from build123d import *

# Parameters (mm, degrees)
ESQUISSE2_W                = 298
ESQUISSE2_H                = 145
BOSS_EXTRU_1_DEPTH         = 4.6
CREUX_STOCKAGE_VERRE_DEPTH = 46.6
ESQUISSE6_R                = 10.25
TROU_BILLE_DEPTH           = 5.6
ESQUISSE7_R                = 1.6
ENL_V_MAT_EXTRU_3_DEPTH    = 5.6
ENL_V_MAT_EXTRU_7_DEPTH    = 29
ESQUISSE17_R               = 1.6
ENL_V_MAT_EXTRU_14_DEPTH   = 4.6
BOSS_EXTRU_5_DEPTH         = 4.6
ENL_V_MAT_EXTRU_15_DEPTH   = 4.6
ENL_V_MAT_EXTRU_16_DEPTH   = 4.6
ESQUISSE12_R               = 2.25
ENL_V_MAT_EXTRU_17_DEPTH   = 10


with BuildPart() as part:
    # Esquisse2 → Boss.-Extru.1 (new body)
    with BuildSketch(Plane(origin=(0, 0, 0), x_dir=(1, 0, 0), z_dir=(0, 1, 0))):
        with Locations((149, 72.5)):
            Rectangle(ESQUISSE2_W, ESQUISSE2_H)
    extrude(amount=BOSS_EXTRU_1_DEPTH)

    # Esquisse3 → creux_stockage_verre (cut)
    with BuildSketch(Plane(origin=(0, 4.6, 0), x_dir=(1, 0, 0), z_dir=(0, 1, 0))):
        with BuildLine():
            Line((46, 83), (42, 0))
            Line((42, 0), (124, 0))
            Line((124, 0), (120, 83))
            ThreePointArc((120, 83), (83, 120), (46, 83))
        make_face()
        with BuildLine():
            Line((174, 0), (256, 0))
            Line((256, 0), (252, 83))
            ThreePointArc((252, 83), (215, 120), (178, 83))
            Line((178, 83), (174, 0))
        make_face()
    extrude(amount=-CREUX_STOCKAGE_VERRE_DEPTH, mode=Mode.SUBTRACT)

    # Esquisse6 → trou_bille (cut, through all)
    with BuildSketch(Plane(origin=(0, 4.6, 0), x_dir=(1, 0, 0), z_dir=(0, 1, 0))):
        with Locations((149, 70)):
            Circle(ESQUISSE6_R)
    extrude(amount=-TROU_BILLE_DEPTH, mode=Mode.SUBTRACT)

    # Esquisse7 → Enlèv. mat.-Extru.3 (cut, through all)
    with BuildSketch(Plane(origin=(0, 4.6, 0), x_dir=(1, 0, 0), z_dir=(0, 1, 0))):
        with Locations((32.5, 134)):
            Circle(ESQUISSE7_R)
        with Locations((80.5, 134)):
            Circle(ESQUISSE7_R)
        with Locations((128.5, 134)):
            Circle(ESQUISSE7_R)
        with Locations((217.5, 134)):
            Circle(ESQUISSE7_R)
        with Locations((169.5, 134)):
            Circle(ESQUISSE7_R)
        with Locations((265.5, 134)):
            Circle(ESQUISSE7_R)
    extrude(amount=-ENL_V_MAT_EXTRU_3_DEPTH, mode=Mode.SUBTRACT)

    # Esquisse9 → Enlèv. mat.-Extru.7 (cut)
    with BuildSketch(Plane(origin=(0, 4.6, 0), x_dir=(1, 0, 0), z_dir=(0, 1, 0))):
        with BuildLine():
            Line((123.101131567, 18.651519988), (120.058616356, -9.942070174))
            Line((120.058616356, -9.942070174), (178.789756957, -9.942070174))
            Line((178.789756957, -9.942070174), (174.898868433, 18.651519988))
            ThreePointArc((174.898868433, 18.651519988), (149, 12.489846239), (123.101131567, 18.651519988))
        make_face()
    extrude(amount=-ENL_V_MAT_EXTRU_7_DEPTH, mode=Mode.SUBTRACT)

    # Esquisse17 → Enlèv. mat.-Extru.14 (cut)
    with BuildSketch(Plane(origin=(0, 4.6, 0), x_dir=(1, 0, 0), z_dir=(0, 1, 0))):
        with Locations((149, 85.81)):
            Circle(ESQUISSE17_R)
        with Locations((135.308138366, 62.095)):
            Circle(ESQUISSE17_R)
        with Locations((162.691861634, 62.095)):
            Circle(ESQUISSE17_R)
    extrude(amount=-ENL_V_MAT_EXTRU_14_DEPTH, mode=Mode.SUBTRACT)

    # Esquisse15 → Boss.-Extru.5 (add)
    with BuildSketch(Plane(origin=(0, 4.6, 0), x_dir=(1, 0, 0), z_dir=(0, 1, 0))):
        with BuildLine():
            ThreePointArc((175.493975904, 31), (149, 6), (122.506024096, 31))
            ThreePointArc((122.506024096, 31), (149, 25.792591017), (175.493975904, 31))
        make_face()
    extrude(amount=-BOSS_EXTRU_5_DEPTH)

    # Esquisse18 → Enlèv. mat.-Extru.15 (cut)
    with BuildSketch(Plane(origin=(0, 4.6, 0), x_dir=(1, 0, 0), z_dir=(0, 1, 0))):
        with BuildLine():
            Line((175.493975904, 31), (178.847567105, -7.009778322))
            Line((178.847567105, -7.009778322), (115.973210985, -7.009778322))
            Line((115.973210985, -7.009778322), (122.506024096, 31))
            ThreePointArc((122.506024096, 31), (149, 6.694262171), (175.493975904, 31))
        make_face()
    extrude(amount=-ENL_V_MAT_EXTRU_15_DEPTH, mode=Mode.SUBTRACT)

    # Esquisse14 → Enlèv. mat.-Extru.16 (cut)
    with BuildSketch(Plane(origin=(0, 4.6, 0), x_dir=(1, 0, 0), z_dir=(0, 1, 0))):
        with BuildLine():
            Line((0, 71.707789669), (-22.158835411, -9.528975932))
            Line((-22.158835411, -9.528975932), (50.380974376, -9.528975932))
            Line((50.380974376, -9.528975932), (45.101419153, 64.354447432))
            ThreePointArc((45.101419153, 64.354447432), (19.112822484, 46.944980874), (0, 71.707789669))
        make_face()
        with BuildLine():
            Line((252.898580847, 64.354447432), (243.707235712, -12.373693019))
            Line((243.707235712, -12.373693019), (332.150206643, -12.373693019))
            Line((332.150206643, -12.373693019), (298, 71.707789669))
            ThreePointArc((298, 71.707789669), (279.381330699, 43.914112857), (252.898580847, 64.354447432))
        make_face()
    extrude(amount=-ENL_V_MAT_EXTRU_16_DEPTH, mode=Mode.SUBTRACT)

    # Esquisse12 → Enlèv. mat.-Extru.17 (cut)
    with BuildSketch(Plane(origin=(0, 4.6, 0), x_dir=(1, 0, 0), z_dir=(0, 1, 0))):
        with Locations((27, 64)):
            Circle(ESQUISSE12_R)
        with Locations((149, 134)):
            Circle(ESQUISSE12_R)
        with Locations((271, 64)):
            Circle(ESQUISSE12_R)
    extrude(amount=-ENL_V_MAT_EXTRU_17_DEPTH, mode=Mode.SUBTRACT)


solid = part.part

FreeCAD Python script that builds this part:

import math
import FreeCAD as App
import Part
import Sketcher
Q = App.Units.Quantity

doc = App.newDocument("Part")
body = doc.addObject("PartDesign::Body", "Body")

# Sketch on XZ plane
sketch1 = body.newObject("Sketcher::SketchObject", "Sketch")
sketch1.AttachmentSupport = (doc.getObject("XZ_Plane"), [""])
sketch1.MapMode = "FlatFace"
sketch1.addGeometry([
    Part.LineSegment(App.Vector(0, -145, 0), App.Vector(0, 0, 0)),
    Part.LineSegment(App.Vector(0, 0, 0), App.Vector(298, 0, 0)),
    Part.LineSegment(App.Vector(298, 0, 0), App.Vector(298, -145, 0)),
    Part.LineSegment(App.Vector(298, -145, 0), App.Vector(0, -145, 0)),
], False)
sketch1.addConstraint([
    Sketcher.Constraint("Coincident", 0, 2, 1, 1),
    Sketcher.Constraint("Coincident", 1, 2, 2, 1),
    Sketcher.Constraint("Coincident", 2, 2, 3, 1),
    Sketcher.Constraint("Coincident", 3, 2, 0, 1),
    Sketcher.Constraint("Vertical", 0),
    Sketcher.Constraint("Horizontal", 1),
    Sketcher.Constraint("Vertical", 2),
    Sketcher.Constraint("Horizontal", 3),
    Sketcher.Constraint("Coincident", 0, 2, -1, 1),
    Sketcher.Constraint("DistanceX", 1, 1, 1, 2, Q("298 mm")),
    Sketcher.Constraint("DistanceY", 0, 1, 0, 2, Q("145 mm")),
])
pad1 = body.newObject("PartDesign::Pad", "Pad")
pad1.Profile = sketch1
pad1.Length = 4.6
pad1.Reversed = True

# Sketch on XZ plane
sketch2 = body.newObject("Sketcher::SketchObject", "Sketch001")
sketch2.AttachmentSupport = (doc.getObject("XZ_Plane"), [""])
sketch2.MapMode = "FlatFace"
sketch2.AttachmentOffset = App.Placement(App.Vector(0, 0, -4.6), App.Rotation())
sketch2.addGeometry([
    Part.LineSegment(App.Vector(46, -83, 0), App.Vector(42, 0, 0)),  # 0
    Part.LineSegment(App.Vector(42, 0, 0), App.Vector(124, 0, 0)),  # 1
    Part.LineSegment(App.Vector(124, 0, 0), App.Vector(120, -83, 0)),  # 2
    Part.ArcOfCircle(Part.Circle(App.Vector(83, -83, 0), App.Vector(0, 0, 1), 37), math.radians(180), math.radians(360)),  # 3
    Part.LineSegment(App.Vector(174, 0, 0), App.Vector(256, 0, 0)),  # 4
    Part.LineSegment(App.Vector(256, 0, 0), App.Vector(252, -83, 0)),  # 5
    Part.ArcOfCircle(Part.Circle(App.Vector(215, -83, 0), App.Vector(0, 0, 1), 37), math.radians(180), math.radians(360)),  # 6
    Part.LineSegment(App.Vector(178, -83, 0), App.Vector(174, 0, 0)),  # 7
], False)
sketch2.addConstraint([
    Sketcher.Constraint("Coincident", 0, 2, 1, 1),
    Sketcher.Constraint("Coincident", 1, 2, 2, 1),
    Sketcher.Constraint("Coincident", 2, 2, 3, 2),
    Sketcher.Constraint("Coincident", 3, 1, 0, 1),
    Sketcher.Constraint("Coincident", 4, 2, 5, 1),
    Sketcher.Constraint("Coincident", 5, 2, 6, 2),
    Sketcher.Constraint("Coincident", 6, 1, 7, 1),
    Sketcher.Constraint("Coincident", 7, 2, 4, 1),
    Sketcher.Constraint("Horizontal", 1),
    Sketcher.Constraint("Horizontal", 4),
    Sketcher.Constraint("Equal", 3, 6),
    Sketcher.Constraint("PointOnObject", 0, 2, -1),
    Sketcher.Constraint("PointOnObject", 4, 2, -1),
    Sketcher.Constraint("Parallel", 2, 5),
    Sketcher.Constraint("Parallel", 0, 7),
    Sketcher.Constraint("Horizontal", 3, 3, 6, 3),
    Sketcher.Constraint("Horizontal", 6, 3, 2, 2),
    Sketcher.Constraint("Horizontal", 2, 2, 3, 1),
    Sketcher.Constraint("Horizontal", 3, 1, 5, 2),
    Sketcher.Constraint("Horizontal", 5, 2, 6, 1),
    Sketcher.Constraint("Equal", 0, 2),
    Sketcher.Constraint("Radius", 3, Q("37 mm")),
    Sketcher.Constraint("DistanceX", 1, 1, 1, 2, Q("82 mm")),
    Sketcher.Constraint("DistanceX", -1, 1, 3, 3, Q("83 mm")),
    Sketcher.Constraint("DistanceY", 3, 3, -1, 1, Q("83 mm")),
    Sketcher.Constraint("DistanceX", -1, 1, 6, 3, Q("215 mm")),
])
pocket1 = body.newObject("PartDesign::Pocket", "Pocket")
pocket1.Profile = sketch2
pocket1.Length = 46.6
pocket1.Reversed = True

# Sketch on XZ plane
sketch3 = body.newObject("Sketcher::SketchObject", "Sketch002")
sketch3.AttachmentSupport = (doc.getObject("XZ_Plane"), [""])
sketch3.MapMode = "FlatFace"
sketch3.AttachmentOffset = App.Placement(App.Vector(0, 0, -4.6), App.Rotation())
sketch3.addGeometry(Part.Circle(App.Vector(149, -70, 0), App.Vector(0, 0, 1), 10), False)
sketch3.addConstraint([
    Sketcher.Constraint("Diameter", 0, Q("20.5 mm")),
    Sketcher.Constraint("DistanceX", -1, 1, 0, 3, Q("149 mm")),
    Sketcher.Constraint("DistanceY", 0, 3, -1, 1, Q("70 mm")),
])
pocket2 = body.newObject("PartDesign::Pocket", "Pocket001")
pocket2.Profile = sketch3
pocket2.Type = "ThroughAll"
pocket2.Reversed = True

# Sketch on XZ plane
sketch4 = body.newObject("Sketcher::SketchObject", "Sketch003")
sketch4.AttachmentSupport = (doc.getObject("XZ_Plane"), [""])
sketch4.MapMode = "FlatFace"
sketch4.AttachmentOffset = App.Placement(App.Vector(0, 0, -4.6), App.Rotation())
sketch4.addGeometry([
    Part.Circle(App.Vector(32.5, -134, 0), App.Vector(0, 0, 1), 1.6),  # 0
    Part.Circle(App.Vector(80.5, -134, 0), App.Vector(0, 0, 1), 1.6),  # 1
    Part.Circle(App.Vector(128.5, -134, 0), App.Vector(0, 0, 1), 1.6),  # 2
    Part.Circle(App.Vector(217.5, -134, 0), App.Vector(0, 0, 1), 1.6),  # 3
    Part.Circle(App.Vector(169.5, -134, 0), App.Vector(0, 0, 1), 1.6),  # 4
    Part.Circle(App.Vector(265.5, -134, 0), App.Vector(0, 0, 1), 1.6),  # 5
], False)
sketch4.addConstraint([
    Sketcher.Constraint("Equal", 0, 1),
    Sketcher.Constraint("Equal", 1, 2),
    Sketcher.Constraint("Equal", 2, 3),
    Sketcher.Constraint("Equal", 3, 4),
    Sketcher.Constraint("Equal", 4, 5),
    Sketcher.Constraint("Horizontal", 0, 3, 1, 3),
    Sketcher.Constraint("Horizontal", 1, 3, 2, 3),
    Sketcher.Constraint("Horizontal", 2, 3, 3, 3),
    Sketcher.Constraint("Horizontal", 3, 3, 4, 3),
    Sketcher.Constraint("Horizontal", 4, 3, 5, 3),
    Sketcher.Constraint("Diameter", 0, Q("3.2 mm")),
    Sketcher.Constraint("DistanceY", 0, 3, -1, 1, Q("134 mm")),
    Sketcher.Constraint("DistanceX", 0, 3, 1, 3, Q("48 mm")),
    Sketcher.Constraint("DistanceX", 1, 3, 2, 3, Q("48 mm")),
    Sketcher.Constraint("DistanceX", 2, 3, 3, 3, Q("89 mm")),
    Sketcher.Constraint("DistanceX", 2, 3, 4, 3, Q("41 mm")),
    Sketcher.Constraint("DistanceX", 3, 3, 5, 3, Q("48 mm")),
    Sketcher.Constraint("DistanceX", -1, 1, 0, 3, Q("32.5 mm")),
])
pocket3 = body.newObject("PartDesign::Pocket", "Pocket002")
pocket3.Profile = sketch4
pocket3.Type = "ThroughAll"
pocket3.Reversed = True

# Sketch on XZ plane
sketch5 = body.newObject("Sketcher::SketchObject", "Sketch004")
sketch5.AttachmentSupport = (doc.getObject("XZ_Plane"), [""])
sketch5.MapMode = "FlatFace"
sketch5.AttachmentOffset = App.Placement(App.Vector(0, 0, -4.6), App.Rotation())
sketch5.addGeometry([
    Part.LineSegment(App.Vector(123, -19, 0), App.Vector(120, 10, 0)),
    Part.LineSegment(App.Vector(120, 10, 0), App.Vector(179, 10, 0)),
    Part.LineSegment(App.Vector(179, 10, 0), App.Vector(175, -19, 0)),
    Part.ArcOfCircle(Part.Circle(App.Vector(149, -70, 0), App.Vector(0, 0, 1), 58), math.radians(63), math.radians(117)),
], False)
sketch5.addConstraint([
    Sketcher.Constraint("Coincident", 0, 2, 1, 1),
    Sketcher.Constraint("Coincident", 1, 2, 2, 1),
    Sketcher.Constraint("Coincident", 2, 2, 3, 1),
    Sketcher.Constraint("Coincident", 3, 2, 0, 1),
    Sketcher.Constraint("Horizontal", 1),
    Sketcher.Constraint("Horizontal", 2, 2, 3, 2),
    Sketcher.Constraint("DistanceX", -1, 1, 3, 3, Q("149 mm")),
    Sketcher.Constraint("DistanceY", 3, 3, -1, 1, Q("70 mm")),
    Sketcher.Constraint("Radius", 3, Q("57.510154 mm")),
    Sketcher.Constraint("DistanceX", 1, 1, 1, 2, Q("58.731141 mm")),
    Sketcher.Constraint("DistanceY", -1, 1, 0, 2, Q("9.94207 mm")),
    Sketcher.Constraint("DistanceX", -1, 1, 2, 2, Q("174.898868 mm")),
    Sketcher.Constraint("DistanceX", 2, 2, 1, 2, Q("3.890889 mm")),
])
pocket4 = body.newObject("PartDesign::Pocket", "Pocket003")
pocket4.Profile = sketch5
pocket4.Length = 29
pocket4.Reversed = True

# Sketch on XZ plane
sketch6 = body.newObject("Sketcher::SketchObject", "Sketch005")
sketch6.AttachmentSupport = (doc.getObject("XZ_Plane"), [""])
sketch6.MapMode = "FlatFace"
sketch6.AttachmentOffset = App.Placement(App.Vector(0, 0, -4.6), App.Rotation())
sketch6.addGeometry([
    Part.Circle(App.Vector(149, -85.8, 0), App.Vector(0, 0, 1), 1.6),
    Part.Circle(App.Vector(135.3, -62.1, 0), App.Vector(0, 0, 1), 1.6),
    Part.Circle(App.Vector(162.7, -62.1, 0), App.Vector(0, 0, 1), 1.6),
], False)
sketch6.addConstraint([
    Sketcher.Constraint("Equal", 0, 1),
    Sketcher.Constraint("Equal", 1, 2),
    Sketcher.Constraint("Horizontal", 1, 3, 2, 3),
    Sketcher.Constraint("Diameter", 0, Q("3.2 mm")),
    Sketcher.Constraint("DistanceX", -1, 1, 0, 3, Q("149 mm")),
    Sketcher.Constraint("DistanceY", 0, 3, -1, 1, Q("85.81 mm")),
    Sketcher.Constraint("DistanceY", 1, 3, -1, 1, Q("62.095 mm")),
    Sketcher.Constraint("DistanceX", -1, 1, 1, 3, Q("135.308138 mm")),
    Sketcher.Constraint("DistanceX", -1, 1, 2, 3, Q("162.691862 mm")),
])
pocket5 = body.newObject("PartDesign::Pocket", "Pocket004")
pocket5.Profile = sketch6
pocket5.Length = 4.6
pocket5.Reversed = True

# Sketch on XZ plane
sketch7 = body.newObject("Sketcher::SketchObject", "Sketch006")
sketch7.AttachmentSupport = (doc.getObject("XZ_Plane"), [""])
sketch7.MapMode = "FlatFace"
sketch7.AttachmentOffset = App.Placement(App.Vector(0, 0, -4.6), App.Rotation())
sketch7.addGeometry([
    Part.ArcOfCircle(Part.Circle(App.Vector(149, -33, 0), App.Vector(0, 0, 1), 27), math.radians(3), math.radians(177)),
    Part.ArcOfCircle(Part.Circle(App.Vector(149, -96, 0), App.Vector(0, 0, 1), 70), math.radians(68), math.radians(112)),
], False)
sketch7.addConstraint([
    Sketcher.Constraint("Coincident", 0, 1, 1, 1),
    Sketcher.Constraint("Coincident", 1, 2, 0, 2),
    Sketcher.Constraint("Horizontal", 0, 1, 1, 2),
    Sketcher.Constraint("DistanceX", -1, 1, 0, 3, Q("149 mm")),
    Sketcher.Constraint("DistanceY", 0, 1, -1, 1, Q("31 mm")),
    Sketcher.Constraint("Radius", 1, Q("70.001019 mm")),
    Sketcher.Constraint("Radius", 0, Q("26.538615 mm")),
    Sketcher.Constraint("DistanceY", 1, 3, -1, 1, Q("95.79361 mm")),
])
pad2 = body.newObject("PartDesign::Pad", "Pad001")
pad2.Profile = sketch7
pad2.Length = 4.6

# Sketch on XZ plane
sketch8 = body.newObject("Sketcher::SketchObject", "Sketch007")
sketch8.AttachmentSupport = (doc.getObject("XZ_Plane"), [""])
sketch8.MapMode = "FlatFace"
sketch8.AttachmentOffset = App.Placement(App.Vector(0, 0, -4.6), App.Rotation())
sketch8.addGeometry([
    Part.LineSegment(App.Vector(179, 7, 0), App.Vector(175, -31, 0)),
    Part.ArcOfCircle(Part.Circle(App.Vector(149, -33, 0), App.Vector(0, 0, 1), 27), math.radians(5), math.radians(175)),
    Part.LineSegment(App.Vector(123, -31, 0), App.Vector(116, 7, 0)),
    Part.LineSegment(App.Vector(116, 7, 0), App.Vector(179, 7, 0)),
], False)
sketch8.addConstraint([
    Sketcher.Constraint("Coincident", 0, 2, 1, 1),
    Sketcher.Constraint("Coincident", 1, 2, 2, 1),
    Sketcher.Constraint("Coincident", 2, 2, 3, 1),
    Sketcher.Constraint("Coincident", 3, 2, 0, 1),
    Sketcher.Constraint("Horizontal", 3),
    Sketcher.Constraint("Horizontal", 0, 2, 1, 2),
    Sketcher.Constraint("DistanceX", -1, 1, 1, 3, Q("149 mm")),
    Sketcher.Constraint("DistanceY", 0, 2, -1, 1, Q("31 mm")),
    Sketcher.Constraint("Radius", 1, Q("26.592479 mm")),
    Sketcher.Constraint("DistanceX", 3, 1, 3, 2, Q("62.874356 mm")),
    Sketcher.Constraint("DistanceY", 1, 3, -1, 1, Q("33.286741 mm")),
    Sketcher.Constraint("DistanceX", -1, 1, 2, 2, Q("115.973211 mm")),
    Sketcher.Constraint("DistanceY", -1, 1, 2, 2, Q("7.009778 mm")),
])
pocket6 = body.newObject("PartDesign::Pocket", "Pocket005")
pocket6.Profile = sketch8
pocket6.Length = 4.6
pocket6.Reversed = True

# Sketch on XZ plane
sketch9 = body.newObject("Sketcher::SketchObject", "Sketch008")
sketch9.AttachmentSupport = (doc.getObject("XZ_Plane"), [""])
sketch9.MapMode = "FlatFace"
sketch9.AttachmentOffset = App.Placement(App.Vector(0, 0, -4.6), App.Rotation())
sketch9.addGeometry([
    Part.LineSegment(App.Vector(0, -72, 0), App.Vector(-22, 10, 0)),  # 0
    Part.LineSegment(App.Vector(-22, 10, 0), App.Vector(50, 10, 0)),  # 1
    Part.LineSegment(App.Vector(50, 10, 0), App.Vector(45, -64, 0)),  # 2
    Part.ArcOfCircle(Part.Circle(App.Vector(23, -70, 0), App.Vector(0, 0, 1), 23), math.radians(13), math.radians(185)),  # 3
    Part.LineSegment(App.Vector(253, -64, 0), App.Vector(244, 12, 0)),  # 4
    Part.LineSegment(App.Vector(244, 12, 0), App.Vector(332, 12, 0)),  # 5
    Part.LineSegment(App.Vector(332, 12, 0), App.Vector(298, -72, 0)),  # 6
    Part.ArcOfCircle(Part.Circle(App.Vector(276, -67, 0), App.Vector(0, 0, 1), 23), math.radians(-13), math.radians(175)),  # 7
], False)
sketch9.addConstraint([
    Sketcher.Constraint("Coincident", 0, 2, 1, 1),
    Sketcher.Constraint("Coincident", 1, 2, 2, 1),
    Sketcher.Constraint("Coincident", 2, 2, 3, 1),
    Sketcher.Constraint("Coincident", 3, 2, 0, 1),
    Sketcher.Constraint("Coincident", 4, 2, 5, 1),
    Sketcher.Constraint("Coincident", 5, 2, 6, 1),
    Sketcher.Constraint("Coincident", 6, 2, 7, 1),
    Sketcher.Constraint("Coincident", 7, 2, 4, 1),
    Sketcher.Constraint("Horizontal", 1),
    Sketcher.Constraint("Horizontal", 5),
    Sketcher.Constraint("Equal", 3, 7),
    Sketcher.Constraint("PointOnObject", 3, 2, -2),
    Sketcher.Constraint("Horizontal", 3, 2, 6, 2),
    Sketcher.Constraint("Horizontal", 2, 2, 7, 2),
    Sketcher.Constraint("Radius", 3, Q("22.9 mm")),
    Sketcher.Constraint("DistanceX", -1, 1, 6, 2, Q("298 mm")),
    Sketcher.Constraint("Distance", 4, Q("77.2767 mm")),
    Sketcher.Constraint("DistanceX", 1, 1, 1, 2, Q("72.53981 mm")),
    Sketcher.Constraint("DistanceX", 5, 1, 5, 2, Q("88.442971 mm")),
    Sketcher.Constraint("DistanceX", -1, 1, 2, 2, Q("45.101419 mm")),
    Sketcher.Constraint("DistanceY", 3, 2, -1, 1, Q("71.70779 mm")),
    Sketcher.Constraint("DistanceX", -1, 1, 7, 2, Q("252.898581 mm")),
    Sketcher.Constraint("DistanceY", 3, 3, 7, 3, Q("3.030868 mm")),
    Sketcher.Constraint("DistanceX", 0, 2, 3, 3, Q("44.956622 mm")),
    Sketcher.Constraint("DistanceY", 3, 3, 0, 2, Q("79.075528 mm")),
    Sketcher.Constraint("DistanceX", 4, 2, 7, 3, Q("31.989131 mm")),
])
pocket7 = body.newObject("PartDesign::Pocket", "Pocket006")
pocket7.Profile = sketch9
pocket7.Length = 4.6
pocket7.Reversed = True

# Sketch on XZ plane
sketch10 = body.newObject("Sketcher::SketchObject", "Sketch009")
sketch10.AttachmentSupport = (doc.getObject("XZ_Plane"), [""])
sketch10.MapMode = "FlatFace"
sketch10.AttachmentOffset = App.Placement(App.Vector(0, 0, -4.6), App.Rotation())
sketch10.addGeometry([
    Part.Circle(App.Vector(27, -64, 0), App.Vector(0, 0, 1), 2.2),
    Part.Circle(App.Vector(149, -134, 0), App.Vector(0, 0, 1), 2.2),
    Part.Circle(App.Vector(271, -64, 0), App.Vector(0, 0, 1), 2.2),
], False)
sketch10.addConstraint([
    Sketcher.Constraint("Equal", 0, 1),
    Sketcher.Constraint("Equal", 1, 2),
    Sketcher.Constraint("Horizontal", 0, 3, 2, 3),
    Sketcher.Constraint("Diameter", 0, Q("4.5 mm")),
    Sketcher.Constraint("DistanceX", -1, 1, 0, 3, Q("27 mm")),
    Sketcher.Constraint("DistanceY", 0, 3, -1, 1, Q("64 mm")),
    Sketcher.Constraint("DistanceX", -1, 1, 1, 3, Q("149 mm")),
    Sketcher.Constraint("DistanceY", 1, 3, -1, 1, Q("134 mm")),
    Sketcher.Constraint("DistanceX", -1, 1, 2, 3, Q("271 mm")),
])
pocket8 = body.newObject("PartDesign::Pocket", "Pocket007")
pocket8.Profile = sketch10
pocket8.Length = 10
pocket8.Reversed = True

doc.recompute()
